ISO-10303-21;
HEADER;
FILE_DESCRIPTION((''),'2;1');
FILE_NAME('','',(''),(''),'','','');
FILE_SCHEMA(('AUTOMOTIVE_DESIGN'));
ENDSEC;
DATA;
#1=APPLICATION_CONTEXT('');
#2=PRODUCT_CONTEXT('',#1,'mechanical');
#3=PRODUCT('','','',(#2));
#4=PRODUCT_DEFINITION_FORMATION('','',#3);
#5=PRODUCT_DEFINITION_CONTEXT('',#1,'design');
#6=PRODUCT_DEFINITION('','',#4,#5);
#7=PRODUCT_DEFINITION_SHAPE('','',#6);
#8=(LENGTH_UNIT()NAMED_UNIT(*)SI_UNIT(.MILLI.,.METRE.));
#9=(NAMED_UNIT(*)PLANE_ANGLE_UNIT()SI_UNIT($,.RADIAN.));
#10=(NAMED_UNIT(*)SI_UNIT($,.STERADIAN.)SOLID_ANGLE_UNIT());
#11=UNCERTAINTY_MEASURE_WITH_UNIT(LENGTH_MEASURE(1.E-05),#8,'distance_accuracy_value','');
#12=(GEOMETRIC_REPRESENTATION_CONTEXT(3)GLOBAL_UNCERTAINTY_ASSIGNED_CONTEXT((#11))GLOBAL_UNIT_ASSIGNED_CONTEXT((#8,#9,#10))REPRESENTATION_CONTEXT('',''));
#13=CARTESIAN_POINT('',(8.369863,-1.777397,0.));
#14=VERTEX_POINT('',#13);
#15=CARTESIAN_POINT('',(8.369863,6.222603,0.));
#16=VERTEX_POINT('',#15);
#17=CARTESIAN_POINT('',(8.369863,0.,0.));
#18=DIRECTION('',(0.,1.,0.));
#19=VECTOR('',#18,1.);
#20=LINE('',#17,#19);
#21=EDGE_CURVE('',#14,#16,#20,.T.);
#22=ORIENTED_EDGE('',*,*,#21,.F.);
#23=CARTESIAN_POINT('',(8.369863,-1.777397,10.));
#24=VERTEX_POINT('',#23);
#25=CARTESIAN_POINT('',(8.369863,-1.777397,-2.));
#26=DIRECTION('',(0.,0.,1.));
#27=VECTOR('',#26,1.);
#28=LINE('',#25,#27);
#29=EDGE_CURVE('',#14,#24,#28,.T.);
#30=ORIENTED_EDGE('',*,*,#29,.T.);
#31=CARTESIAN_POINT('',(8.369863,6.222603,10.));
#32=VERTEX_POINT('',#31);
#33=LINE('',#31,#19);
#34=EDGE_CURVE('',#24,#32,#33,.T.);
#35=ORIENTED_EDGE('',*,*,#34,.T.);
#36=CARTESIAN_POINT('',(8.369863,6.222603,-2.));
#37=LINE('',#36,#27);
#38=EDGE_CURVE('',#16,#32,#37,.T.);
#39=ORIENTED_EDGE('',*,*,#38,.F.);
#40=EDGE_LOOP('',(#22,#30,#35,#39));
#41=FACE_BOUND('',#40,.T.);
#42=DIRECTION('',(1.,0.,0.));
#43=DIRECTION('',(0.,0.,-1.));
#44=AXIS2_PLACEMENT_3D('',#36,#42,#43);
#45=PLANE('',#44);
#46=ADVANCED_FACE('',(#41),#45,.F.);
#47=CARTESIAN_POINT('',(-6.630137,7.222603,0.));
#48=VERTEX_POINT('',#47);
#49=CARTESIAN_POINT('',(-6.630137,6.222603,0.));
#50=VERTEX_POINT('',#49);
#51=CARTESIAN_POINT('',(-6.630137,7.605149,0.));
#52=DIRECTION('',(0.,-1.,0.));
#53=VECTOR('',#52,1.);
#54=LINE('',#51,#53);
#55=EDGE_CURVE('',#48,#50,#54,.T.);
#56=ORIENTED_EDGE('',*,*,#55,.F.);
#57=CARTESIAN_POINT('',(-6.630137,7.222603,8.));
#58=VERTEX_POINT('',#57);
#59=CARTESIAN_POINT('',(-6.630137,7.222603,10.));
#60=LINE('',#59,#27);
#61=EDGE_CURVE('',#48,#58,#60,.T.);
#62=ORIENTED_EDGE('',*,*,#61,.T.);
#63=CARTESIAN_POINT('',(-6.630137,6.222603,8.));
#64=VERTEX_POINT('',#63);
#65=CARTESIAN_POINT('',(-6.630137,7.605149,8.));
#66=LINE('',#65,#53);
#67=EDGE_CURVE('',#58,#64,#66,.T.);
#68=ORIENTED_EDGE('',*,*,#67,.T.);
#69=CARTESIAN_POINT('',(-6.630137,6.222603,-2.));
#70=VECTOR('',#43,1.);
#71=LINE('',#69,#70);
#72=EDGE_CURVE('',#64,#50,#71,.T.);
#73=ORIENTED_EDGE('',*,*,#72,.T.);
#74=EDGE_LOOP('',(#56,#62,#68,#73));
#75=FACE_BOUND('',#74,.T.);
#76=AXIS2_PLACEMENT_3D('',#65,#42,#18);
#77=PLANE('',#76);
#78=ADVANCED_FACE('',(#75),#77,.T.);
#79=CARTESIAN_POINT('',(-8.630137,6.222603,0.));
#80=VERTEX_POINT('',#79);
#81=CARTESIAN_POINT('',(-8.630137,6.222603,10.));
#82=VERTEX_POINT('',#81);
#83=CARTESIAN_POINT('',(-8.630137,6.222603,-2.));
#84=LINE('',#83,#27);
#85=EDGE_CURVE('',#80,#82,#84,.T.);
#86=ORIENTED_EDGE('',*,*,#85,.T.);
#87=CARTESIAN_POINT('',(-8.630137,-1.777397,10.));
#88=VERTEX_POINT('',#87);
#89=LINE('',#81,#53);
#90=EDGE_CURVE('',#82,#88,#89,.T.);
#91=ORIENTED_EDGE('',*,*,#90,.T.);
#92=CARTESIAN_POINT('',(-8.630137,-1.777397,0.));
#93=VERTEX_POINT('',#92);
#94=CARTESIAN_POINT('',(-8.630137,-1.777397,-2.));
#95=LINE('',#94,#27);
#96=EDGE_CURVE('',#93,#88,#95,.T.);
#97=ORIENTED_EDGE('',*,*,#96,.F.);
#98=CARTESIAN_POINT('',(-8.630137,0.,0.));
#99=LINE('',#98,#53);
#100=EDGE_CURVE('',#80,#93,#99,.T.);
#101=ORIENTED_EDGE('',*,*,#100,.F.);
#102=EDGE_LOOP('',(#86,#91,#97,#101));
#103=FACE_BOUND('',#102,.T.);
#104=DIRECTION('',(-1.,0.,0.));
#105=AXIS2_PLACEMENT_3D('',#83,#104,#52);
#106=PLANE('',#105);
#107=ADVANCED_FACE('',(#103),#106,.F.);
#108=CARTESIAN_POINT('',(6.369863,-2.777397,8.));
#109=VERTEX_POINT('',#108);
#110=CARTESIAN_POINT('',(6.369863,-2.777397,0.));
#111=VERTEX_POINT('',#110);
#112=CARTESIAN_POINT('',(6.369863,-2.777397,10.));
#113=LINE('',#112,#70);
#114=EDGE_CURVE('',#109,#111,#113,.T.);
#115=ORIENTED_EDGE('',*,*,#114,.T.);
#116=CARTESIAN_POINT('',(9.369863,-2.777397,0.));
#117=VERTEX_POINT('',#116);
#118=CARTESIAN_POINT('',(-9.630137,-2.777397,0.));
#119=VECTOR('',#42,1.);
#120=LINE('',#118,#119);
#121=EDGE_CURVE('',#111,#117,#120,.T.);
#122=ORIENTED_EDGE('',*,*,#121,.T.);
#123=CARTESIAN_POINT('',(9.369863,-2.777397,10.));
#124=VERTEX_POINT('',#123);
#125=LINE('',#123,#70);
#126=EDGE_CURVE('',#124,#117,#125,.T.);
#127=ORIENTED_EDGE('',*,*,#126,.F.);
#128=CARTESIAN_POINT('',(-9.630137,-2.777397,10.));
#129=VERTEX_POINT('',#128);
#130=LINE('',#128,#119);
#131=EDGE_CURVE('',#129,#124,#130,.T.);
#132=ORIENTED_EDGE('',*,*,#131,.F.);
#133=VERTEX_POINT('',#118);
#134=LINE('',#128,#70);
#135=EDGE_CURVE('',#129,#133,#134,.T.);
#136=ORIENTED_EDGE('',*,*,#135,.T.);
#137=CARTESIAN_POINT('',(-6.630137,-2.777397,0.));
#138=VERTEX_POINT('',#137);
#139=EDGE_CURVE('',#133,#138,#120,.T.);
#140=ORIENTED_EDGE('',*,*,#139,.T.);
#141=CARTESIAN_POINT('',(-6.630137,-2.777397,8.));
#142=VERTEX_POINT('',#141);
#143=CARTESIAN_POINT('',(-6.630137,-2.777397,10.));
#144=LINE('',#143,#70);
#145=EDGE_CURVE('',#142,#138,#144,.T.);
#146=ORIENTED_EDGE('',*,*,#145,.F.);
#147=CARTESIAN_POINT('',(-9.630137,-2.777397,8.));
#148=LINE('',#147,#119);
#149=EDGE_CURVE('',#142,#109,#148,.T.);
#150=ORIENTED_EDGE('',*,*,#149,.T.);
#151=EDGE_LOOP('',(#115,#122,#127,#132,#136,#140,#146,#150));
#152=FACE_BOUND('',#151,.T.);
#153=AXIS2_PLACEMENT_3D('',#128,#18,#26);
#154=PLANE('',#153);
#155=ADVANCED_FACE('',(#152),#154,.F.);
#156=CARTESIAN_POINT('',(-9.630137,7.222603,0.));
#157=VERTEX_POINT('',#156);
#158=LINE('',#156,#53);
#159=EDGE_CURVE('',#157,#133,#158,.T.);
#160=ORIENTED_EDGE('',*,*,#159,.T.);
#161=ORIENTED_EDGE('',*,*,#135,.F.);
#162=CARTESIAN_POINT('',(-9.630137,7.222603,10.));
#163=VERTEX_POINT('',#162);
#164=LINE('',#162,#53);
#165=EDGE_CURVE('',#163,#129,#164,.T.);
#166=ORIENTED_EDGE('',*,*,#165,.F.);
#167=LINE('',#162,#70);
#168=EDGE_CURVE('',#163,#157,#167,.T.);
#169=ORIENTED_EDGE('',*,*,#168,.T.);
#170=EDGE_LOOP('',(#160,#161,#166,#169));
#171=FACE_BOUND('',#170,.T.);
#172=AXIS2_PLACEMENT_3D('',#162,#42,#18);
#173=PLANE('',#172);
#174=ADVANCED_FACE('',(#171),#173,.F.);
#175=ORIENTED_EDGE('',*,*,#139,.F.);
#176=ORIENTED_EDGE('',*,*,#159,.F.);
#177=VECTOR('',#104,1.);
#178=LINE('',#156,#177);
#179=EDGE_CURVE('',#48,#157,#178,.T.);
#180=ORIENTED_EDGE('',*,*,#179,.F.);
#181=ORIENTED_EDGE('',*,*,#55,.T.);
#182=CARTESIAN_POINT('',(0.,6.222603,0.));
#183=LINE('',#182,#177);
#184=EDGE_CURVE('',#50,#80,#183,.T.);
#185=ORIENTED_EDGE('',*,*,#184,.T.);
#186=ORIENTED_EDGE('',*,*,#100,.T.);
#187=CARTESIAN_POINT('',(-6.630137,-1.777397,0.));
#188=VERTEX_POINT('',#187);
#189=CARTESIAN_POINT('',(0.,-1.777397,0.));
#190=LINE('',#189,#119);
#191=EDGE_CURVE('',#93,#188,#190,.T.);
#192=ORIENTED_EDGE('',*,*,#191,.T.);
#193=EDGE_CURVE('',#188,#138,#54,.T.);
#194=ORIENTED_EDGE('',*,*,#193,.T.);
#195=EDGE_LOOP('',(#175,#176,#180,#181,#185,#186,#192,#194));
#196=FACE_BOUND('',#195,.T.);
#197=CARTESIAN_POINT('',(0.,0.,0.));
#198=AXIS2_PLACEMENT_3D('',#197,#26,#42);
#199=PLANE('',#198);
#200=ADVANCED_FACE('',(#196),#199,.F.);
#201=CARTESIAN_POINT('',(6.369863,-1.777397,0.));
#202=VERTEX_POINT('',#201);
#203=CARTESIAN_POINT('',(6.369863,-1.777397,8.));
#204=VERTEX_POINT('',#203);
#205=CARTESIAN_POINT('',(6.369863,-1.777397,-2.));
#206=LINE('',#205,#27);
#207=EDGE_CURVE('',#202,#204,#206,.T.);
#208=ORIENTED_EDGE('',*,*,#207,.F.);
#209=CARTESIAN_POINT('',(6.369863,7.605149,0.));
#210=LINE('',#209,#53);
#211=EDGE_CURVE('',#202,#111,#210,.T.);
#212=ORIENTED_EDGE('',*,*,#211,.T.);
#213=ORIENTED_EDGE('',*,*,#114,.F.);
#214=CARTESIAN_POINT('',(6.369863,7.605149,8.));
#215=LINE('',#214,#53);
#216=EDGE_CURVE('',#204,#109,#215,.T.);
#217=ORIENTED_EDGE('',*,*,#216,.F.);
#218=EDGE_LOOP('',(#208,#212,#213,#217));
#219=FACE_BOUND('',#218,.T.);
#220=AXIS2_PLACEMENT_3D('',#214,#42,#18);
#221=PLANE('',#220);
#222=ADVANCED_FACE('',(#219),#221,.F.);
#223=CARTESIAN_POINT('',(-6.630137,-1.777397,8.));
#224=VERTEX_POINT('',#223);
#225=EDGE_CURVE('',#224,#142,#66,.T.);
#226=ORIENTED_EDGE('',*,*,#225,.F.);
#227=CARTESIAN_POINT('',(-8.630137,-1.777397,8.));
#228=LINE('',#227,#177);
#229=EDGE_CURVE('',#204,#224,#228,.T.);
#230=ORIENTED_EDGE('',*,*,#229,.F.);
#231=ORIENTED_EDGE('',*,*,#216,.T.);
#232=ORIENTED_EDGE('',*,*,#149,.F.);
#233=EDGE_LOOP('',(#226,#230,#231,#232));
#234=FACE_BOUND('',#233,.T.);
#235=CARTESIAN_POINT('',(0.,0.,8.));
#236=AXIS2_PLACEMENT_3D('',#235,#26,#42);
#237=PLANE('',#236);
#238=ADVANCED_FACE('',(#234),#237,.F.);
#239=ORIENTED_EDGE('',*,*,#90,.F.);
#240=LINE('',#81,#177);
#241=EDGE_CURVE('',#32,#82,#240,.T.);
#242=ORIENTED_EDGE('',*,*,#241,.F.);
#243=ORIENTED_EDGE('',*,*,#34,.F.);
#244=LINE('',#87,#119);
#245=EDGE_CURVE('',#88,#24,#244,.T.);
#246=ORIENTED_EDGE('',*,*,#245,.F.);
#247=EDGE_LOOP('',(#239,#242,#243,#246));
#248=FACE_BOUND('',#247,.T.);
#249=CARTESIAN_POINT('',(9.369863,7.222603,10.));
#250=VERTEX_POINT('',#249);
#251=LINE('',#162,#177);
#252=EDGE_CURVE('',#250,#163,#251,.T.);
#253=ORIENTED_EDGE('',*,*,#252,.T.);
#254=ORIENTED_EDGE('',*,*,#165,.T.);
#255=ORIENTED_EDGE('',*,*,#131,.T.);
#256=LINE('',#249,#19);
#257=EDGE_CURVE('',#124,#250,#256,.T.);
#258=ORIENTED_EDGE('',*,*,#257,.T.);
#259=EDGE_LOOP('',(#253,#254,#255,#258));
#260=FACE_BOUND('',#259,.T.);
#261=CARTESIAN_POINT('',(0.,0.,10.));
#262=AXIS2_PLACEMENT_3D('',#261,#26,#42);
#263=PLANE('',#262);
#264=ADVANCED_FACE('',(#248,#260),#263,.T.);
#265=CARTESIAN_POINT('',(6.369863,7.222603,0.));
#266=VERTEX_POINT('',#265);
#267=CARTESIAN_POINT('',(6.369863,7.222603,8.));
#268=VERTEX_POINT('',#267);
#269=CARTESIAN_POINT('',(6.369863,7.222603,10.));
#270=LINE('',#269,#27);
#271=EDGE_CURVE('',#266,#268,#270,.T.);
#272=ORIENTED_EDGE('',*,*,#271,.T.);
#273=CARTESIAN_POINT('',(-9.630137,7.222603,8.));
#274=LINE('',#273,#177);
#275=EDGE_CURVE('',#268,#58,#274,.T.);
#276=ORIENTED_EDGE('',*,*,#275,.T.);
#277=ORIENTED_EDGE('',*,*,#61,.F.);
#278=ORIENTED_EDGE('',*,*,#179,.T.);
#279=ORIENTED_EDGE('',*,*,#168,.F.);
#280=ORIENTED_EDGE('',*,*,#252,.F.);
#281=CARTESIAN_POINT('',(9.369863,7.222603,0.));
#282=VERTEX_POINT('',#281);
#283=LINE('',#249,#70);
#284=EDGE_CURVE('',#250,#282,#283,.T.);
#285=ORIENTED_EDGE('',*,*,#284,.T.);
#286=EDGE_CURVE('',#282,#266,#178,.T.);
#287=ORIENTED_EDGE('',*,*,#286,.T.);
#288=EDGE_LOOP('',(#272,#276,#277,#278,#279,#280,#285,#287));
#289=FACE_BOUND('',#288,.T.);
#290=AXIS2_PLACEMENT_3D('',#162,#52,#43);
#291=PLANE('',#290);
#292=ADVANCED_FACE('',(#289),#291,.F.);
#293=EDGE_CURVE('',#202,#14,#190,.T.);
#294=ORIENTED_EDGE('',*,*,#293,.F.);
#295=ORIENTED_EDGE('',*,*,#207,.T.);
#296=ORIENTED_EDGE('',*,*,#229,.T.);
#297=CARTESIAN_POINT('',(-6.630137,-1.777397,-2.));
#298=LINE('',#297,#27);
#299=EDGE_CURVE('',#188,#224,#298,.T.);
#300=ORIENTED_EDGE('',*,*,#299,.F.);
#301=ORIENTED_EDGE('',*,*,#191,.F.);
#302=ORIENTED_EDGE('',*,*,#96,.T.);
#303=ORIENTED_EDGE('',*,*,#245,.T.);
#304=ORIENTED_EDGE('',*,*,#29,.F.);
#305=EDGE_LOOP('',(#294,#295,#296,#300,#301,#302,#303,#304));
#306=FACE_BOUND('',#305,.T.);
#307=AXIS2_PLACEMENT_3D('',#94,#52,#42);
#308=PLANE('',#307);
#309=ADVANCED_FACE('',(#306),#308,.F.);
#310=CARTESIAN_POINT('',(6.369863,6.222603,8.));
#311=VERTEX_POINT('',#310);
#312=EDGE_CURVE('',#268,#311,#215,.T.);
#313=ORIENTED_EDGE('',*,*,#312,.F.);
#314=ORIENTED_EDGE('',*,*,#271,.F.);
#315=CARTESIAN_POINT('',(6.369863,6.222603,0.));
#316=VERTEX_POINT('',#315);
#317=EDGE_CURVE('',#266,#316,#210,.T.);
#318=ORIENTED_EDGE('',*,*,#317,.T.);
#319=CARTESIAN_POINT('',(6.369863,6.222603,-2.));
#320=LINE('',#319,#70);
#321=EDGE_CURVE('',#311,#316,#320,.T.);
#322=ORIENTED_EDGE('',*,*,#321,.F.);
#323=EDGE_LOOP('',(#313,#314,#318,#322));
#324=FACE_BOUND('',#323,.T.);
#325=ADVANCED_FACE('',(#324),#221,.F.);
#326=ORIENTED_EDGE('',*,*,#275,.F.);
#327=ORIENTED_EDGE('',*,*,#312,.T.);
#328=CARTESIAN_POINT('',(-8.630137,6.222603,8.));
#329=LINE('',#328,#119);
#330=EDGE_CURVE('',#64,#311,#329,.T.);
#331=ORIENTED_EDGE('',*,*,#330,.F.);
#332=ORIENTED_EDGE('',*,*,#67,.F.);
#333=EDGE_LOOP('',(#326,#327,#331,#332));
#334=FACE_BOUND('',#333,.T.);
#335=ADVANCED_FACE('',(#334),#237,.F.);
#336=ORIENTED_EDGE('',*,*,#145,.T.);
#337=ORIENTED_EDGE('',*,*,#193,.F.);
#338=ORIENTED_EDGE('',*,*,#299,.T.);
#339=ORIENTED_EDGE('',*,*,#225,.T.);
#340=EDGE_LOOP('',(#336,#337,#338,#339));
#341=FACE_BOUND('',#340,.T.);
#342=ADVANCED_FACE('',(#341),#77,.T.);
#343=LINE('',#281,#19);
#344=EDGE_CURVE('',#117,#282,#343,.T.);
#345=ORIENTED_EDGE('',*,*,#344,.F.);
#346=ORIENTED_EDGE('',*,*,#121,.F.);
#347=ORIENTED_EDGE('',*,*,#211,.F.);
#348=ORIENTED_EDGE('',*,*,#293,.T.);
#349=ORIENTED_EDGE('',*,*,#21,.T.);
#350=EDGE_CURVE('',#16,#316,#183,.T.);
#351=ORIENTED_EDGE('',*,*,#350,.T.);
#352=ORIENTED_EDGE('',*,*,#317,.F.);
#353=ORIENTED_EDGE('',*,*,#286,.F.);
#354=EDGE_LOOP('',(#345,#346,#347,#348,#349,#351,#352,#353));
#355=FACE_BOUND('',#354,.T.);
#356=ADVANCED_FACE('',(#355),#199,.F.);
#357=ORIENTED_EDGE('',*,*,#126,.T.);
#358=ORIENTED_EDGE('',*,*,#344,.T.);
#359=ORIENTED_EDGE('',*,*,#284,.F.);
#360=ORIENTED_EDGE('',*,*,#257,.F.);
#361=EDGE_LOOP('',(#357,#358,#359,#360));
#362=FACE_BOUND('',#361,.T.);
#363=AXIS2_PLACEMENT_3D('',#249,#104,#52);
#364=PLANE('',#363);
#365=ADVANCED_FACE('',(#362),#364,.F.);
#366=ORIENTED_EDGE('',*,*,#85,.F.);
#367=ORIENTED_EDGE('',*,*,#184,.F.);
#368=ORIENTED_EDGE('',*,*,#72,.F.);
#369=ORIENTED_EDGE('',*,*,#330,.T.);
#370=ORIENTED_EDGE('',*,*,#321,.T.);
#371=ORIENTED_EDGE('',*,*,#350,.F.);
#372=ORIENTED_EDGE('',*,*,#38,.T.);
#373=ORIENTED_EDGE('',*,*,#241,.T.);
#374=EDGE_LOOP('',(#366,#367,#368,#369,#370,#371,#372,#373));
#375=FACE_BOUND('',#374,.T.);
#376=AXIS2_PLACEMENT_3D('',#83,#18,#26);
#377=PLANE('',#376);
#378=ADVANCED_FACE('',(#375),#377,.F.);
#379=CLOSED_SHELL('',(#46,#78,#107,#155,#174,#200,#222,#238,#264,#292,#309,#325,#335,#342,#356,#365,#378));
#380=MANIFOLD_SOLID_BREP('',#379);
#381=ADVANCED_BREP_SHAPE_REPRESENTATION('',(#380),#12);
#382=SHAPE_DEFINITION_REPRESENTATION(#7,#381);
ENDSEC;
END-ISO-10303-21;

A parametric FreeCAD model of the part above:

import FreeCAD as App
import Part
import Sketcher
from FreeCAD import Vector


def add_polygon(sketch, points):
    """Adds a closed chain of lines whose ends are joined by coincident constraints."""
    first, n = sketch.GeometryCount, len(points)
    for a, b in zip(points, points[1:] + points[:1]):
        sketch.addGeometry(Part.LineSegment(App.Vector(*a, 0), App.Vector(*b, 0)), False)
    for i in range(n):
        sketch.addConstraint(Sketcher.Constraint("Coincident", first + i, 2, first + (i + 1) % n, 1))

doc = App.newDocument("Part")
body = doc.addObject("PartDesign::Body", "Body")

# Sketch on XY plane
sketch1 = body.newObject("Sketcher::SketchObject", "Sketch")
sketch1.AttachmentSupport = (doc.getObject("XY_Plane"), [""])
sketch1.MapMode = "FlatFace"
add_polygon(sketch1, [(-9.630137, 7.222603), (-9.630137, -2.777397), (9.369863, -2.777397), (9.369863, 7.222603)])  # lines 0-3
sketch1.addConstraint(Sketcher.Constraint("Vertical", 0))
sketch1.addConstraint(Sketcher.Constraint("Horizontal", 1))
sketch1.addConstraint(Sketcher.Constraint("Vertical", 2))
sketch1.addConstraint(Sketcher.Constraint("Horizontal", 3))
sketch1.addConstraint(Sketcher.Constraint("DistanceX", 1, 1, 1, 2, 19.0))
sketch1.addConstraint(Sketcher.Constraint("DistanceY", 0, 2, 0, 1, 10.0))
sketch1.addConstraint(Sketcher.Constraint("DistanceX", 0, 2, -1, 1, 9.630137))
sketch1.addConstraint(Sketcher.Constraint("DistanceY", 0, 2, -1, 1, 2.777397))
pad1 = body.newObject("PartDesign::Pad", "Pad")
pad1.Profile = sketch1
pad1.Length = 10

# Sketch on XY plane
sketch2 = body.newObject("Sketcher::SketchObject", "Sketch001")
sketch2.AttachmentSupport = (doc.getObject("XY_Plane"), [""])
sketch2.MapMode = "FlatFace"
sketch2.AttachmentOffset = App.Placement(Vector(0, 0, 10), App.Rotation())
add_polygon(sketch2, [(-8.630137, 6.222603), (-8.630137, -1.777397), (8.369863, -1.777397), (8.369863, 6.222603)])  # lines 0-3
sketch2.addConstraint(Sketcher.Constraint("Vertical", 0))
sketch2.addConstraint(Sketcher.Constraint("Horizontal", 1))
sketch2.addConstraint(Sketcher.Constraint("Vertical", 2))
sketch2.addConstraint(Sketcher.Constraint("Horizontal", 3))
sketch2.addConstraint(Sketcher.Constraint("DistanceX", 1, 1, 1, 2, 17.0))
sketch2.addConstraint(Sketcher.Constraint("DistanceY", 0, 2, 0, 1, 8.0))
sketch2.addConstraint(Sketcher.Constraint("DistanceX", 0, 2, -1, 1, 8.630137))
sketch2.addConstraint(Sketcher.Constraint("DistanceY", 0, 2, -1, 1, 1.777397))
pocket1 = body.newObject("PartDesign::Pocket", "Pocket")
pocket1.Profile = sketch2
pocket1.Length = 12

# Sketch on XY plane
sketch3 = body.newObject("Sketcher::SketchObject", "Sketch002")
sketch3.AttachmentSupport = (doc.getObject("XY_Plane"), [""])
sketch3.MapMode = "FlatFace"
add_polygon(sketch3, [(-6.630137, 7.605149), (-6.630137, -2.914818), (6.369863, -2.914818), (6.369863, 7.605149)])  # lines 0-3
sketch3.addConstraint(Sketcher.Constraint("Vertical", 0))
sketch3.addConstraint(Sketcher.Constraint("Horizontal", 1))
sketch3.addConstraint(Sketcher.Constraint("Vertical", 2))
sketch3.addConstraint(Sketcher.Constraint("Horizontal", 3))
sketch3.addConstraint(Sketcher.Constraint("DistanceX", 1, 1, 1, 2, 13.0))
sketch3.addConstraint(Sketcher.Constraint("DistanceY", 0, 2, 0, 1, 10.519968))
sketch3.addConstraint(Sketcher.Constraint("DistanceY", 0, 2, -1, 1, 2.914818))
sketch3.addConstraint(Sketcher.Constraint("DistanceX", 0, 2, -1, 1, 6.630137))
pocket2 = body.newObject("PartDesign::Pocket", "Pocket001")
pocket2.Profile = sketch3
pocket2.Length = 8
pocket2.Reversed = True

doc.recompute()
